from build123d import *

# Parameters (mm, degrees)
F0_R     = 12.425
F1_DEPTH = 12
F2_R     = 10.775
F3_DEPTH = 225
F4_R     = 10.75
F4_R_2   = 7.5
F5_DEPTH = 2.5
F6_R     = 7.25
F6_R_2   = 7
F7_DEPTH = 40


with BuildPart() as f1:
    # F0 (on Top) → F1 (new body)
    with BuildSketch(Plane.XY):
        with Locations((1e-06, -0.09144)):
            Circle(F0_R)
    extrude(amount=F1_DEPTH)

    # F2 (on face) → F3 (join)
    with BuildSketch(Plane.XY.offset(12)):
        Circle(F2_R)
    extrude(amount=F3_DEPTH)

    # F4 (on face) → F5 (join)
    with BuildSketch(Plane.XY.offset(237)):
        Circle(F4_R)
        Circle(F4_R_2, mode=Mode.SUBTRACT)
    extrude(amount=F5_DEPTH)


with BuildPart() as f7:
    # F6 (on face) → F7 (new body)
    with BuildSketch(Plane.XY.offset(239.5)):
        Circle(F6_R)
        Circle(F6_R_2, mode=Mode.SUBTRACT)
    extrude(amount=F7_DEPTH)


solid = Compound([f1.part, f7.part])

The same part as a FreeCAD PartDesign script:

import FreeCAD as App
import Part
import Sketcher

doc = App.newDocument("Part")
body = doc.addObject("PartDesign::Body", "Body")

# Sketch on XY plane
sketch1 = body.newObject("Sketcher::SketchObject", "Sketch")
sketch1.AttachmentSupport = (doc.getObject("XY_Plane"), [""])
sketch1.MapMode = "FlatFace"
sketch1.addGeometry(Part.Circle(App.Vector(0.000001, -0.09144, 0), App.Vector(0, 0, 1), 12.425), False)
sketch1.addConstraint([
    Sketcher.Constraint("PointOnObject", 0, 3, -2),
    Sketcher.Constraint("Diameter", 0, 24.85),
    Sketcher.Constraint("DistanceY", 0, 3, -1, 1, 0.09144),
])
pad1 = body.newObject("PartDesign::Pad", "Pad")
pad1.Profile = sketch1
pad1.Length = 12

# Sketch on XY plane
sketch2 = body.newObject("Sketcher::SketchObject", "Sketch001")
sketch2.AttachmentSupport = (doc.getObject("XY_Plane"), [""])
sketch2.MapMode = "FlatFace"
sketch2.AttachmentOffset = App.Placement(App.Vector(0, 0, 12), App.Rotation())
sketch2.addGeometry(Part.Circle(App.Vector(0, 0, 0), App.Vector(0, 0, 1), 10.775), False)
sketch2.addConstraint([
    Sketcher.Constraint("Coincident", 0, 3, -1, 1),
    Sketcher.Constraint("Diameter", 0, 21.55),
])
pad2 = body.newObject("PartDesign::Pad", "Pad001")
pad2.Profile = sketch2
pad2.Length = 225

# Sketch on XY plane
sketch3 = body.newObject("Sketcher::SketchObject", "Sketch002")
sketch3.AttachmentSupport = (doc.getObject("XY_Plane"), [""])
sketch3.MapMode = "FlatFace"
sketch3.AttachmentOffset = App.Placement(App.Vector(0, 0, 237), App.Rotation())
sketch3.addGeometry([
    Part.Circle(App.Vector(0, 0, 0), App.Vector(0, 0, 1), 10.75),
    Part.Circle(App.Vector(0, 0, 0), App.Vector(0, 0, 1), 7.5),
], False)
sketch3.addConstraint([
    Sketcher.Constraint("Coincident", 0, 3, -1, 1),
    Sketcher.Constraint("Coincident", 1, 3, -1, 1),
    Sketcher.Constraint("Diameter", 1, 15.0),
    Sketcher.Constraint("Diameter", 0, 21.5),
])
pad3 = body.newObject("PartDesign::Pad", "Pad002")
pad3.Profile = sketch3
pad3.Length = 2.5
body2 = doc.addObject("PartDesign::Body", "Body001")

# Sketch on XY plane
sketch4 = body2.newObject("Sketcher::SketchObject", "Sketch003")
sketch4.AttachmentSupport = (doc.getObject("XY_Plane001"), [""])
sketch4.MapMode = "FlatFace"
sketch4.AttachmentOffset = App.Placement(App.Vector(0, 0, 239.5), App.Rotation())
sketch4.addGeometry([
    Part.Circle(App.Vector(0, 0, 0), App.Vector(0, 0, 1), 7.25),
    Part.Circle(App.Vector(0, 0, 0), App.Vector(0, 0, 1), 7),
], False)
sketch4.addConstraint([
    Sketcher.Constraint("Coincident", 0, 3, -1, 1),
    Sketcher.Constraint("Coincident", 1, 3, -1, 1),
    Sketcher.Constraint("Diameter", 1, 14.0),
    Sketcher.Constraint("Diameter", 0, 14.5),
])
pad4 = body2.newObject("PartDesign::Pad", "Pad003")
pad4.Profile = sketch4
pad4.Length = 40

doc.recompute()
